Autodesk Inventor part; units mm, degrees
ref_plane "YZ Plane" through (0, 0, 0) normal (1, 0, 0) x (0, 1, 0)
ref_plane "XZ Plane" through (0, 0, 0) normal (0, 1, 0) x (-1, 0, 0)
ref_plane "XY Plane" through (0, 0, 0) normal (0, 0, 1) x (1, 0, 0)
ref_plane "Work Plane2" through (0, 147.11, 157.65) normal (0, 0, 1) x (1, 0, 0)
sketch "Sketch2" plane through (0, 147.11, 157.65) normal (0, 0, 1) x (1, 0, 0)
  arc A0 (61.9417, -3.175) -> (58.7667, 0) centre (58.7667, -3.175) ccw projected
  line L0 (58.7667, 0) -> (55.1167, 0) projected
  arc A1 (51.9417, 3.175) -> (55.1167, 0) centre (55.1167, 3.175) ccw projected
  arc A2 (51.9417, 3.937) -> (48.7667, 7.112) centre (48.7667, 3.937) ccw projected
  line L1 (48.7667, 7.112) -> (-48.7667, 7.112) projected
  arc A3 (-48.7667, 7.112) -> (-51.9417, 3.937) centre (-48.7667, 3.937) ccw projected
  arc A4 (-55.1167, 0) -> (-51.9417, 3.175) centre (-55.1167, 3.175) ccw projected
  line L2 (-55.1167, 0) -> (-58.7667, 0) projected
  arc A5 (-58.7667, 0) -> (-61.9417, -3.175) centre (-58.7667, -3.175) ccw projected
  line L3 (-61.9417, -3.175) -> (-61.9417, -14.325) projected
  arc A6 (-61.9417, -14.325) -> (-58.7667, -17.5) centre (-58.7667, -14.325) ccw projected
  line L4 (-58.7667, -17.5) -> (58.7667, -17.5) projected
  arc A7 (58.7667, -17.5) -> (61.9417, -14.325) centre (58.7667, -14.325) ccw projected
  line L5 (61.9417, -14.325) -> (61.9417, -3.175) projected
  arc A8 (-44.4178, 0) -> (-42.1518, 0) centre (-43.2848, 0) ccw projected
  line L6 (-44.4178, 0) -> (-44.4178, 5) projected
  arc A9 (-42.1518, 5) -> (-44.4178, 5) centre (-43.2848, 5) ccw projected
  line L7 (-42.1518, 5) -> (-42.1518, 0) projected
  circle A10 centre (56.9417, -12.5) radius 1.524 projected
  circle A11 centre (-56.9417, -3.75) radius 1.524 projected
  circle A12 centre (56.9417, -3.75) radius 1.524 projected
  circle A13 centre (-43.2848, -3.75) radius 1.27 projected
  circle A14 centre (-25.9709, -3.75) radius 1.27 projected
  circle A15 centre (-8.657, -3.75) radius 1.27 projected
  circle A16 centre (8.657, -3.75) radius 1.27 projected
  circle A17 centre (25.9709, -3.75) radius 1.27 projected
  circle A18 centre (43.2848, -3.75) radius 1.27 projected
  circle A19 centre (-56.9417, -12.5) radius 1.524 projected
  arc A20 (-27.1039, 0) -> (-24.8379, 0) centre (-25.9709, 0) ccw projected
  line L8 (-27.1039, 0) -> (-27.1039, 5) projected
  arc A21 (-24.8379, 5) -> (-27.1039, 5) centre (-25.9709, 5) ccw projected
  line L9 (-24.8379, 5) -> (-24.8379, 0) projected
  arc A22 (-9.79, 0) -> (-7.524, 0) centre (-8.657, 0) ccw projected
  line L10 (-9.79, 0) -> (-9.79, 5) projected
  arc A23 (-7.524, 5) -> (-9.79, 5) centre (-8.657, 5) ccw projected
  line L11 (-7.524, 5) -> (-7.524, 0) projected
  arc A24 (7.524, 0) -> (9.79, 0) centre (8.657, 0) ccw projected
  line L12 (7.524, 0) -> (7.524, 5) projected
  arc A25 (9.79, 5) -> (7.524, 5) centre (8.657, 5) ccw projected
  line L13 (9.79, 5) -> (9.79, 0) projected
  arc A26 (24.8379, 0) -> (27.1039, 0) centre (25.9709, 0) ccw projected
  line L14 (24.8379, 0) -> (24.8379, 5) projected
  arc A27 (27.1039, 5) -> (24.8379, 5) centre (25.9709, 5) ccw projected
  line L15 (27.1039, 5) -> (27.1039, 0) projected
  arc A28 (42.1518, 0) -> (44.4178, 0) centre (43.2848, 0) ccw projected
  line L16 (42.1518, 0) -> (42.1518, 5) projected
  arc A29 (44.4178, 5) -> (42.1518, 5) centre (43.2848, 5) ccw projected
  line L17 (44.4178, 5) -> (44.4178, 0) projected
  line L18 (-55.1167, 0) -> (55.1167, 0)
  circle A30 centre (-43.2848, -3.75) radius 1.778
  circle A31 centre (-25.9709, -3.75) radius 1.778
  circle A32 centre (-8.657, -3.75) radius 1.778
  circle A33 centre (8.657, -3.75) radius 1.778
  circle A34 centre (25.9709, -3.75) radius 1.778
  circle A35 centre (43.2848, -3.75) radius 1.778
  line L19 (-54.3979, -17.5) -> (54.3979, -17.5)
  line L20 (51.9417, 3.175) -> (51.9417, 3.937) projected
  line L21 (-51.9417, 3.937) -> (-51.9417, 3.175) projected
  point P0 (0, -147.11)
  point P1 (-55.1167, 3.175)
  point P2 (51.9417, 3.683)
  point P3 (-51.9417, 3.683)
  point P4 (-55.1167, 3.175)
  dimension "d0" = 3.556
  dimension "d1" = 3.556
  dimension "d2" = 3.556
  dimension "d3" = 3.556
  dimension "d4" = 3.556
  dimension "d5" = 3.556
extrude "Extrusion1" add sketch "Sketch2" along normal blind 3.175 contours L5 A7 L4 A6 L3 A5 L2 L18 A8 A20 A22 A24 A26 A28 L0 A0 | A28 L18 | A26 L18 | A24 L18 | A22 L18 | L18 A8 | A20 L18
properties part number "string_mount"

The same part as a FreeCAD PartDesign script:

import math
import FreeCAD as App
import Part
import Sketcher

V = App.Vector
Q = App.Units.Quantity

doc = App.newDocument("Part")
params = doc.addObject("Spreadsheet::Sheet", "Params")
for row, (alias, value) in enumerate([
    ("sketch1_diameter", "0.14 in"),
    ("sketch1_diameter2", "0.12 in"),
    ("sketch1_radius", "0.125 in"),
    ("pad1_length", "0.125 in"),
], start=1):
    params.set(f"A{row}", alias)
    params.set(f"B{row}", "=" + value)
    params.setAlias(f"B{row}", alias)

body = doc.addObject("PartDesign::Body", "Body")

sketch1 = doc.addObject("Sketcher::SketchObject", "Sketch")
body.addObject(sketch1)
sketch1.AttachmentSupport = (doc.XY_Plane, [""])
sketch1.MapMode = "FlatFace"
sketch1.AttachmentOffset = App.Placement(V(0, 0, 6.2066929 * 25.4), App.Rotation())
sketch1.addGeometry([
    Part.LineSegment(V(61.9417, 132.785, 0), V(61.9417, 143.935, 0)),
    Part.ArcOfCircle(Part.Circle(V(58.7667, 143.935, 0), V(0, 0, 1), 3.175), math.radians(0), math.radians(90)),
    Part.LineSegment(V(58.7667, 147.11, 0), V(-58.7667, 147.11, 0)),
    Part.ArcOfCircle(Part.Circle(V(-58.7667, 143.935, 0), V(0, 0, 1), 3.175), math.radians(90), math.radians(180)),
    Part.LineSegment(V(-61.9417, 143.935, 0), V(-61.9417, 132.785, 0)),
    Part.ArcOfCircle(Part.Circle(V(-58.7667, 132.785, 0), V(0, 0, 1), 3.175), math.radians(180), math.radians(270)),
    Part.LineSegment(V(-58.7667, 129.61, 0), V(58.7667, 129.61, 0)),
    Part.ArcOfCircle(Part.Circle(V(58.7667, 132.785, 0), V(0, 0, 1), 3.175), math.radians(-90), math.radians(0)),
    Part.Circle(V(-56.9417, 134.61, 0), V(0, 0, 1), 1.524),
    Part.Circle(V(56.9417, 134.61, 0), V(0, 0, 1), 1.524),
    Part.Circle(V(-56.9417, 143.36, 0), V(0, 0, 1), 1.524),
    Part.Circle(V(-43.2848, 143.36, 0), V(0, 0, 1), 1.778),
    Part.Circle(V(-25.9709, 143.36, 0), V(0, 0, 1), 1.778),
    Part.Circle(V(-8.657, 143.36, 0), V(0, 0, 1), 1.778),
    Part.Circle(V(8.657, 143.36, 0), V(0, 0, 1), 1.778),
    Part.Circle(V(25.9709, 143.36, 0), V(0, 0, 1), 1.778),
    Part.Circle(V(43.2848, 143.36, 0), V(0, 0, 1), 1.778),
    Part.Circle(V(56.9417, 143.36, 0), V(0, 0, 1), 1.524),
], False)
sketch1.addConstraint([
    Sketcher.Constraint("Tangent", 0, 2, 1, 1),
    Sketcher.Constraint("Tangent", 1, 2, 2, 1),
    Sketcher.Constraint("Tangent", 2, 2, 3, 1),
    Sketcher.Constraint("Tangent", 3, 2, 4, 1),
    Sketcher.Constraint("Tangent", 4, 2, 5, 1),
    Sketcher.Constraint("Tangent", 5, 2, 6, 1),
    Sketcher.Constraint("Tangent", 6, 2, 7, 1),
    Sketcher.Constraint("Tangent", 7, 2, 0, 1),
    Sketcher.Constraint("Vertical", 0),
    Sketcher.Constraint("Horizontal", 2),
    Sketcher.Constraint("Vertical", 4),
    Sketcher.Constraint("Horizontal", 6),
    Sketcher.Constraint("Equal", 1, 3),
    Sketcher.Constraint("Equal", 3, 5),
    Sketcher.Constraint("Equal", 5, 7),
    Sketcher.Constraint("Equal", 8, 9),
    Sketcher.Constraint("Equal", 9, 10),
    Sketcher.Constraint("Equal", 11, 12),
    Sketcher.Constraint("Equal", 12, 13),
    Sketcher.Constraint("Equal", 13, 14),
    Sketcher.Constraint("Equal", 14, 15),
    Sketcher.Constraint("Equal", 15, 16),
    Sketcher.Constraint("Equal", 10, 17),
    Sketcher.Constraint("Symmetric", 8, 3, 9, 3, -2),
    Sketcher.Constraint("Symmetric", 13, 3, 14, 3, -2),
    Sketcher.Constraint("Symmetric", 12, 3, 15, 3, -2),
    Sketcher.Constraint("Symmetric", 11, 3, 16, 3, -2),
    Sketcher.Constraint("Symmetric", 10, 3, 17, 3, -2),
    Sketcher.Constraint("Horizontal", 10, 3, 11, 3),
    Sketcher.Constraint("Horizontal", 11, 3, 12, 3),
    Sketcher.Constraint("Horizontal", 12, 3, 13, 3),
    Sketcher.Constraint("Vertical", 8, 3, 10, 3),
    Sketcher.Constraint("Diameter", 11, Q("0.14 in")),
    Sketcher.Constraint("Diameter", 8, Q("0.12 in")),
    Sketcher.Constraint("Radius", 1, Q("0.125 in")),
    Sketcher.Constraint("DistanceX", 2, 2, 2, 1, Q("4.6273 in")),
    Sketcher.Constraint("DistanceY", 0, 1, 0, 2, Q("11.15 mm")),
    Sketcher.Constraint("DistanceX", 8, 3, -1, 1, Q("2.2418 in")),
    Sketcher.Constraint("DistanceY", -1, 1, 8, 3, Q("5.2996 in")),
    Sketcher.Constraint("DistanceY", -1, 1, 10, 3, Q("5.6441 in")),
    Sketcher.Constraint("DistanceX", 11, 3, 13, 3, Q("1.3633 in")),
    Sketcher.Constraint("DistanceX", 12, 3, 14, 3, Q("1.3633 in")),
    Sketcher.Constraint("DistanceX", -1, 1, 1, 3, Q("58.7667 mm")),
    Sketcher.Constraint("DistanceY", -1, 1, 1, 3, Q("143.935 mm")),
    Sketcher.Constraint("DistanceX", 11, 3, -1, 1, Q("43.2848 mm")),
])
sketch1.setExpression("Constraints[32]", "Params.sketch1_diameter")
sketch1.setExpression("Constraints[33]", "Params.sketch1_diameter2")
sketch1.setExpression("Constraints[34]", "Params.sketch1_radius")
pad1 = doc.addObject("PartDesign::Pad", "Pad")
body.addObject(pad1)
pad1.Profile = sketch1
pad1.setExpression("Length", "Params.pad1_length")

doc.recompute()
